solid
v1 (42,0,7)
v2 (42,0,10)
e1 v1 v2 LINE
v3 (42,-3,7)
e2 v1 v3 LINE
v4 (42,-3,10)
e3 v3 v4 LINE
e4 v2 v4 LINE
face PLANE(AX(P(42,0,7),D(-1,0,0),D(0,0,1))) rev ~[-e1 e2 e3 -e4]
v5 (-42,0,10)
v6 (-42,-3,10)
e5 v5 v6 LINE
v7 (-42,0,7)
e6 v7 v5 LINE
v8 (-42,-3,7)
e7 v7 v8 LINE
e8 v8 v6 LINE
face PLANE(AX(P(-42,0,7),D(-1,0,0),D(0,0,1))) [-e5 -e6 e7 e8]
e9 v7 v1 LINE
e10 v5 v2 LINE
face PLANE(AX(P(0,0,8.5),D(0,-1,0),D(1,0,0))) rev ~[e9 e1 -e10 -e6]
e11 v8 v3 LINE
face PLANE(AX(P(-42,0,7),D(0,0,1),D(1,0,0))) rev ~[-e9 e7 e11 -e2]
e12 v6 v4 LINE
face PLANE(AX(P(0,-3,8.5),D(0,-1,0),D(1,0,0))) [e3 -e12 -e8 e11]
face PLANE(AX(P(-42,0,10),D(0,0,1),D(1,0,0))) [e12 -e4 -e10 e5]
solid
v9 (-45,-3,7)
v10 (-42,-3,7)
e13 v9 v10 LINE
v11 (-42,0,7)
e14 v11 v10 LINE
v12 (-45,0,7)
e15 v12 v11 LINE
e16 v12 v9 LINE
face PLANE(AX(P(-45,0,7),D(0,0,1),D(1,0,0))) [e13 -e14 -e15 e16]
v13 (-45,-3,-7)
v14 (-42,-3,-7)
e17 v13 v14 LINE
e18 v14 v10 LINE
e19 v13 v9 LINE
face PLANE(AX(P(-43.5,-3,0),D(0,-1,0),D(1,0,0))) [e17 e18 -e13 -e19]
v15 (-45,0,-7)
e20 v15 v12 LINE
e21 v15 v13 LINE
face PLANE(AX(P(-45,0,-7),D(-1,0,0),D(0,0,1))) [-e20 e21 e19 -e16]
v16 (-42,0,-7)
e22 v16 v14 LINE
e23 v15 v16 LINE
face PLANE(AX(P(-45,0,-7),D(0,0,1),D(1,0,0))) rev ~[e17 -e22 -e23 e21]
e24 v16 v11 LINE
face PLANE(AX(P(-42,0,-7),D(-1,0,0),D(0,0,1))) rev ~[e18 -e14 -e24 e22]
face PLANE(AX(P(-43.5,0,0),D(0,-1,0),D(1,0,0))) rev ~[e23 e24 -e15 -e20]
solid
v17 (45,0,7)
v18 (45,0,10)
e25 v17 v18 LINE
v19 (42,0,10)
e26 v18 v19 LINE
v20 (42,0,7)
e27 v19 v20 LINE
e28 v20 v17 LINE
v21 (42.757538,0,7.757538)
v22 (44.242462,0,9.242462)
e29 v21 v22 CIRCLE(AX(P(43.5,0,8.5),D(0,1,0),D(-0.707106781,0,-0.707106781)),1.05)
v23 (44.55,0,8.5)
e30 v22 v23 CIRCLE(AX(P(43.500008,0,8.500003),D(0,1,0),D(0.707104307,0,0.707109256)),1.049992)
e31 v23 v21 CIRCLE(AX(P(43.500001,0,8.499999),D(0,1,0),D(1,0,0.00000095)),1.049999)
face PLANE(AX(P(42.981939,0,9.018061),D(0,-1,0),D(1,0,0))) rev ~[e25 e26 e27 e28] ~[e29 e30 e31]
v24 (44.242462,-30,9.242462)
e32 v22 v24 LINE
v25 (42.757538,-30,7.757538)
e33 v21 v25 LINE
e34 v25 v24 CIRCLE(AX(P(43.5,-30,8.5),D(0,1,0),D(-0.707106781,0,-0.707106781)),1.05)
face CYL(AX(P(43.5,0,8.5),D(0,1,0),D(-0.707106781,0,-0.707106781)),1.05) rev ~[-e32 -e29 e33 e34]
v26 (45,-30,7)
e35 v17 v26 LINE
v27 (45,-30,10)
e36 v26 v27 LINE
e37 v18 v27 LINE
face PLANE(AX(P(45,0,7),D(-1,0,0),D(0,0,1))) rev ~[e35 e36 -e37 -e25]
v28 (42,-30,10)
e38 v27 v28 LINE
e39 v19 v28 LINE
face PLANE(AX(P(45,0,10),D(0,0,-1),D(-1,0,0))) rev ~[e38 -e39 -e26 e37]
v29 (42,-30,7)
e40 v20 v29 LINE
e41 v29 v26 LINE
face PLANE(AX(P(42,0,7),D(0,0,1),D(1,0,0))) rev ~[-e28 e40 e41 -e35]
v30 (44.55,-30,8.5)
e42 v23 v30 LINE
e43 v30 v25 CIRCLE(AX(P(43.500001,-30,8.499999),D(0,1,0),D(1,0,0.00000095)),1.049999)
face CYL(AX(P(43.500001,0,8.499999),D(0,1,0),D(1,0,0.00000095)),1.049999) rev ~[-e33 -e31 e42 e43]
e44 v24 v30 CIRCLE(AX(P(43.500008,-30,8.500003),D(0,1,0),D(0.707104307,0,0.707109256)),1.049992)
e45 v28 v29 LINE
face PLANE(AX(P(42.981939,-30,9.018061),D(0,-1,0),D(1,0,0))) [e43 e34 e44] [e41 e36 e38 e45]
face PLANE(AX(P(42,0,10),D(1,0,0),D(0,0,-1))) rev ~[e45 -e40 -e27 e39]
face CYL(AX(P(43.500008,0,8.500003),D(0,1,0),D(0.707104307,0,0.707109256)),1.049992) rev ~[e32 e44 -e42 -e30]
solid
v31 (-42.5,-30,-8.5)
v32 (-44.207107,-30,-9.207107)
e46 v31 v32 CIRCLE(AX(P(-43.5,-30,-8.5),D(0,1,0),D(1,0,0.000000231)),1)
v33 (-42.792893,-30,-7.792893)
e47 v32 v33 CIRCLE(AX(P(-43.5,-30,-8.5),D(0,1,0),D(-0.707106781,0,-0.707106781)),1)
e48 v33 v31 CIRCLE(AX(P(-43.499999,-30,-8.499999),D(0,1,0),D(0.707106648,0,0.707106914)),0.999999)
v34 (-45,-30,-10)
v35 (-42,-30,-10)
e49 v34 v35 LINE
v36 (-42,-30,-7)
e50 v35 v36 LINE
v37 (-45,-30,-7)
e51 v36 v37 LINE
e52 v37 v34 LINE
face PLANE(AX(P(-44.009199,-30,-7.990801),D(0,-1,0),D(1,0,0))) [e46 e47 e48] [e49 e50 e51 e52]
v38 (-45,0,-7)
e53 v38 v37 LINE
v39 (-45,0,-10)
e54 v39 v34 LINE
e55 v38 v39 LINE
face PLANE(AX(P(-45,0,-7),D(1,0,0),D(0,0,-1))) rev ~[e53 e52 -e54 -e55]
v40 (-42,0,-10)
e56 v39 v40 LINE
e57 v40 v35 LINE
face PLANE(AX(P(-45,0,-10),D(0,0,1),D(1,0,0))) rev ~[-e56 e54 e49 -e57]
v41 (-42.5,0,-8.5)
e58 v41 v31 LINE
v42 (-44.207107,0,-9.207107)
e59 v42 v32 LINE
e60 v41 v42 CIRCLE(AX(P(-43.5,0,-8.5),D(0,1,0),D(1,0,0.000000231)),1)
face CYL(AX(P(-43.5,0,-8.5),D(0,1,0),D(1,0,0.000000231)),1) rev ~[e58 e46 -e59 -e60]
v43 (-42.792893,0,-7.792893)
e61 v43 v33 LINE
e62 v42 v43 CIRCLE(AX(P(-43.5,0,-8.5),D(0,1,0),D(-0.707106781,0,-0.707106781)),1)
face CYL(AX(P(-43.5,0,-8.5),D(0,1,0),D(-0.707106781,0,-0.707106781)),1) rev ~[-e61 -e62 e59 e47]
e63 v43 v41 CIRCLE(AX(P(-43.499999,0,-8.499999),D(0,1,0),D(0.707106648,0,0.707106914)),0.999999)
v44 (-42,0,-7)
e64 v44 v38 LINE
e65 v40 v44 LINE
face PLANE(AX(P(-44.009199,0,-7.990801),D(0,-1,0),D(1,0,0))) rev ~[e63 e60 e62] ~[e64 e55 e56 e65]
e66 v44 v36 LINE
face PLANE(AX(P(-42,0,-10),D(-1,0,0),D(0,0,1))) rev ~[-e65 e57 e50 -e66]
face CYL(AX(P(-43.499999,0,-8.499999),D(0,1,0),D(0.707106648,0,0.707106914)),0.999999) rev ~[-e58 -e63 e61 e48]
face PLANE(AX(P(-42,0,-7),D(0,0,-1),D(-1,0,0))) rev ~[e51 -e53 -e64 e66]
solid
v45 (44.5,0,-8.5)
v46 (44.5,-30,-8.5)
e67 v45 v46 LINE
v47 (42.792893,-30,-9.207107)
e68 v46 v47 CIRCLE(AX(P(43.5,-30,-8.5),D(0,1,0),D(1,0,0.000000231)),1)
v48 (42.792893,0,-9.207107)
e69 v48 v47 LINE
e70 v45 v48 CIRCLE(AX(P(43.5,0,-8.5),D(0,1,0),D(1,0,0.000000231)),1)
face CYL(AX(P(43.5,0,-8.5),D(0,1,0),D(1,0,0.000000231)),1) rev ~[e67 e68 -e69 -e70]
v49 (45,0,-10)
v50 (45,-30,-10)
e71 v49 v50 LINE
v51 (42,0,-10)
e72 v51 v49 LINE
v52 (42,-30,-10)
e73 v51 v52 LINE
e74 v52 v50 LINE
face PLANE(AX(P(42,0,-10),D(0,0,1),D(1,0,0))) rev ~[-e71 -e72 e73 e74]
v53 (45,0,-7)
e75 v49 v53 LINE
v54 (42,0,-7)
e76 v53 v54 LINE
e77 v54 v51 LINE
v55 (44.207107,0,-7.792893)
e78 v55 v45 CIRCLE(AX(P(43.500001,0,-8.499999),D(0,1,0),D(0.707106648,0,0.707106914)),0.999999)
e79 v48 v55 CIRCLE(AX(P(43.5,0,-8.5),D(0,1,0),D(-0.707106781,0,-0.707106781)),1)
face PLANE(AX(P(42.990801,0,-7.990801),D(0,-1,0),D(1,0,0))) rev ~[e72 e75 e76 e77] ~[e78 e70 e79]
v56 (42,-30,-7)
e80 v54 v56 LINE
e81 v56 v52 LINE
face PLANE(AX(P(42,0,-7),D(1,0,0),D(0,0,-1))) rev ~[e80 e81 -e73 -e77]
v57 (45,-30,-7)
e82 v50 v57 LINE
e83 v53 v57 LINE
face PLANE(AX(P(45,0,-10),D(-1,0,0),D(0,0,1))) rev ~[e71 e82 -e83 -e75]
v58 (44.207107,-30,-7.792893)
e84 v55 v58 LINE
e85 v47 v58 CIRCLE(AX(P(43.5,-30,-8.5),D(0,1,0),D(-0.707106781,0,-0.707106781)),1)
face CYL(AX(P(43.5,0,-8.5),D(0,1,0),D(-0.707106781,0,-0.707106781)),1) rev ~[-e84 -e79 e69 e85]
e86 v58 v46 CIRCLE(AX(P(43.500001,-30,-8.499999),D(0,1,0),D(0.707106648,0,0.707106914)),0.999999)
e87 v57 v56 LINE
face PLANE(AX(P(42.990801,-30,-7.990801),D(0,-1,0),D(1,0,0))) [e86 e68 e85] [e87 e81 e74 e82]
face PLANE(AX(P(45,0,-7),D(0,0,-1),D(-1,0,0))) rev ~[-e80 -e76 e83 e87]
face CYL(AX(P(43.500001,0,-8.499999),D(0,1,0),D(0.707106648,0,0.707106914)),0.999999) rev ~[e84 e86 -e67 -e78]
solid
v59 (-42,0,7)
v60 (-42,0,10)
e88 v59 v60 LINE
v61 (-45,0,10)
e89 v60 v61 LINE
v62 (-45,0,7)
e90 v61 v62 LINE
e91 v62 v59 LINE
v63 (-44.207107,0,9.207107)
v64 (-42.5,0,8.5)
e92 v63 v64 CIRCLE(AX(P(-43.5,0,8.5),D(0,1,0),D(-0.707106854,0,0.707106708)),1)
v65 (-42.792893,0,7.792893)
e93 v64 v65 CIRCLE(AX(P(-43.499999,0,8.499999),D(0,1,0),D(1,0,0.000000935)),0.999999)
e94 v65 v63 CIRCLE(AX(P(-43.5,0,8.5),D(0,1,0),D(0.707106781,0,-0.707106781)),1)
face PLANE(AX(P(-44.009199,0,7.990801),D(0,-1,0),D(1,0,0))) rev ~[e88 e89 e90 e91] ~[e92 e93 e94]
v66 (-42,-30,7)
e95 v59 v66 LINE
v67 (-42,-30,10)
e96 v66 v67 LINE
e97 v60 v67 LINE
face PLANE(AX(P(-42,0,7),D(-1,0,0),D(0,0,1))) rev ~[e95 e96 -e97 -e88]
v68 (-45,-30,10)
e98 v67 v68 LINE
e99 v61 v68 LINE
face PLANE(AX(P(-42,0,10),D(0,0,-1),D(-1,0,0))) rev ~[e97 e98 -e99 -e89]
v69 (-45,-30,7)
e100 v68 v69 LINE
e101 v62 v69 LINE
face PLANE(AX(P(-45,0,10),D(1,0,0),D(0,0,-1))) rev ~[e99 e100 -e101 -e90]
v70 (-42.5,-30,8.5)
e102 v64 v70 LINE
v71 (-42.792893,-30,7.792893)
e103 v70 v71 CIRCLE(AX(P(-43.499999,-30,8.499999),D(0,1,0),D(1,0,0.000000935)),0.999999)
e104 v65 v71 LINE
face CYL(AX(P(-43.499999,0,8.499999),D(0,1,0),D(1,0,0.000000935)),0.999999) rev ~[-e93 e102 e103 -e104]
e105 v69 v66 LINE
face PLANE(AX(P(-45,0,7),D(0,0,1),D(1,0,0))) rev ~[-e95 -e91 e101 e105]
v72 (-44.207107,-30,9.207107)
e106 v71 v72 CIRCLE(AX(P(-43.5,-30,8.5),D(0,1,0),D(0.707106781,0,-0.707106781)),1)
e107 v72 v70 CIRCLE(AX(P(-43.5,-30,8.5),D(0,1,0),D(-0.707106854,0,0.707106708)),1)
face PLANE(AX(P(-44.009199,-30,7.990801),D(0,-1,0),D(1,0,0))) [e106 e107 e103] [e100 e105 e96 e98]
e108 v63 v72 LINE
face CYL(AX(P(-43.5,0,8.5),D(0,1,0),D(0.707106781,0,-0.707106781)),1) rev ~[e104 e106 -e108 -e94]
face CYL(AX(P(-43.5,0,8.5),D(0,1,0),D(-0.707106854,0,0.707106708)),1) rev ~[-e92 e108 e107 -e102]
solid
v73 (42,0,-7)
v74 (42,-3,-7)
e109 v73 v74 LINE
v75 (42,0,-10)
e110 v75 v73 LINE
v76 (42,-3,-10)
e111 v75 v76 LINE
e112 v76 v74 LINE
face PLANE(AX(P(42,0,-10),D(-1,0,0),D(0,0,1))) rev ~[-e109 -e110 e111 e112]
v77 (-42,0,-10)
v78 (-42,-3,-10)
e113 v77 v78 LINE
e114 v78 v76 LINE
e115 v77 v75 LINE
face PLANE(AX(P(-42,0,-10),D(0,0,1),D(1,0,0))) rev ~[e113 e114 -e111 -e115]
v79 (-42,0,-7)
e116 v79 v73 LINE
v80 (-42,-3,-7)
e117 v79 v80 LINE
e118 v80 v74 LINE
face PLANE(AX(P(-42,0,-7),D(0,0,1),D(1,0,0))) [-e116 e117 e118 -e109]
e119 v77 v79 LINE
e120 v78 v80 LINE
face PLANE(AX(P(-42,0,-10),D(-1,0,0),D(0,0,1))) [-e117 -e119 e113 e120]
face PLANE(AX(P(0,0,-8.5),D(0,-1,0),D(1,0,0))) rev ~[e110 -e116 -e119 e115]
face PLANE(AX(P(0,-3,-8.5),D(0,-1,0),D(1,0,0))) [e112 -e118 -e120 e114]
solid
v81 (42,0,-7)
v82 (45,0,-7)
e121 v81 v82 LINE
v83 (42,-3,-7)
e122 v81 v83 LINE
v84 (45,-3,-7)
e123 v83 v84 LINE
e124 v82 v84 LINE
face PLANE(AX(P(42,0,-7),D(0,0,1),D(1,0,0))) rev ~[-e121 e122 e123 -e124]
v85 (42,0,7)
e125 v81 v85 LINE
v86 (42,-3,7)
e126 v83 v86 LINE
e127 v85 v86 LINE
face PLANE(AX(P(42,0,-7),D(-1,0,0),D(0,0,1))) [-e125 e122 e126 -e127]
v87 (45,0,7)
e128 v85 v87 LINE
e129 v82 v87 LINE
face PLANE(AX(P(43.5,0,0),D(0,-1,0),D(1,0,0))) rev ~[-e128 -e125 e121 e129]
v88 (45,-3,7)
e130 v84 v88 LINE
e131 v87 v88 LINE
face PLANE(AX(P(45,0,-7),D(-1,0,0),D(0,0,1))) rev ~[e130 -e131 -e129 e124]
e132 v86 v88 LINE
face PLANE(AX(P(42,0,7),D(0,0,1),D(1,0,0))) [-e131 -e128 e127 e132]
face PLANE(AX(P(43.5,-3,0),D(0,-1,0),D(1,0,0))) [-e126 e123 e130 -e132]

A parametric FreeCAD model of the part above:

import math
import FreeCAD as App
import Part
import Sketcher

V = App.Vector

doc = App.newDocument("Part")
body = doc.addObject("PartDesign::Body", "Body")
body.AllowCompound = True

# Sketch on XZ plane
sketch1 = body.newObject("Sketcher::SketchObject", "Sketch")
sketch1.AttachmentSupport = (doc.getObject("XZ_Plane"), [""])
sketch1.MapMode = "FlatFace"
sketch1.addGeometry(Part.LineSegment(V(-42, 10, 0), V(-42, 7, 0)), False)
sketch1.addGeometry(Part.LineSegment(V(-42, 7, 0), V(42, 7, 0)), False)
sketch1.addGeometry(Part.LineSegment(V(42, 7, 0), V(42, 10, 0)), False)
sketch1.addGeometry(Part.LineSegment(V(42, 10, 0), V(-42, 10, 0)), False)
sketch1.addGeometry(Part.LineSegment(V(-42, -7, 0), V(-42, -10, 0)), False)
sketch1.addGeometry(Part.LineSegment(V(-42, -10, 0), V(42, -10, 0)), False)
sketch1.addGeometry(Part.LineSegment(V(42, -10, 0), V(42, -7, 0)), False)
sketch1.addGeometry(Part.LineSegment(V(42, -7, 0), V(-42, -7, 0)), False)
sketch1.addGeometry(Part.LineSegment(V(-45, 7, 0), V(-45, -7, 0)), False)
sketch1.addGeometry(Part.LineSegment(V(-45, -7, 0), V(-42, -7, 0)), False)
sketch1.addGeometry(Part.LineSegment(V(-42, -7, 0), V(-42, 7, 0)), False)
sketch1.addGeometry(Part.LineSegment(V(-42, 7, 0), V(-45, 7, 0)), False)
sketch1.addGeometry(Part.LineSegment(V(42, 7, 0), V(42, -7, 0)), False)
sketch1.addGeometry(Part.LineSegment(V(42, -7, 0), V(45, -7, 0)), False)
sketch1.addGeometry(Part.LineSegment(V(45, -7, 0), V(45, 7, 0)), False)
sketch1.addGeometry(Part.LineSegment(V(45, 7, 0), V(42, 7, 0)), False)
sketch1.addConstraint(Sketcher.Constraint("Coincident", 0, 2, 1, 1))
sketch1.addConstraint(Sketcher.Constraint("Coincident", 1, 2, 2, 1))
sketch1.addConstraint(Sketcher.Constraint("Coincident", 2, 2, 3, 1))
sketch1.addConstraint(Sketcher.Constraint("Coincident", 3, 2, 0, 1))
sketch1.addConstraint(Sketcher.Constraint("Coincident", 4, 2, 5, 1))
sketch1.addConstraint(Sketcher.Constraint("Coincident", 5, 2, 6, 1))
sketch1.addConstraint(Sketcher.Constraint("Coincident", 6, 2, 7, 1))
sketch1.addConstraint(Sketcher.Constraint("Coincident", 7, 2, 4, 1))
sketch1.addConstraint(Sketcher.Constraint("Coincident", 8, 2, 9, 1))
sketch1.addConstraint(Sketcher.Constraint("Coincident", 9, 2, 10, 1))
sketch1.addConstraint(Sketcher.Constraint("Coincident", 10, 2, 11, 1))
sketch1.addConstraint(Sketcher.Constraint("Coincident", 11, 2, 8, 1))
sketch1.addConstraint(Sketcher.Constraint("Coincident", 12, 2, 13, 1))
sketch1.addConstraint(Sketcher.Constraint("Coincident", 13, 2, 14, 1))
sketch1.addConstraint(Sketcher.Constraint("Coincident", 14, 2, 15, 1))
sketch1.addConstraint(Sketcher.Constraint("Coincident", 15, 2, 12, 1))
sketch1.addConstraint(Sketcher.Constraint("Vertical", 0))
sketch1.addConstraint(Sketcher.Constraint("Horizontal", 1))
sketch1.addConstraint(Sketcher.Constraint("Vertical", 2))
sketch1.addConstraint(Sketcher.Constraint("Horizontal", 3))
sketch1.addConstraint(Sketcher.Constraint("Vertical", 4))
sketch1.addConstraint(Sketcher.Constraint("Horizontal", 5))
sketch1.addConstraint(Sketcher.Constraint("Vertical", 6))
sketch1.addConstraint(Sketcher.Constraint("Horizontal", 7))
sketch1.addConstraint(Sketcher.Constraint("Vertical", 8))
sketch1.addConstraint(Sketcher.Constraint("Horizontal", 9))
sketch1.addConstraint(Sketcher.Constraint("Vertical", 10))
sketch1.addConstraint(Sketcher.Constraint("Horizontal", 11))
sketch1.addConstraint(Sketcher.Constraint("Vertical", 12))
sketch1.addConstraint(Sketcher.Constraint("Horizontal", 13))
sketch1.addConstraint(Sketcher.Constraint("Vertical", 14))
sketch1.addConstraint(Sketcher.Constraint("Horizontal", 15))
sketch1.addConstraint(Sketcher.Constraint("Coincident", 9, 2, 7, 2))
sketch1.addConstraint(Sketcher.Constraint("Coincident", 10, 2, 0, 2))
sketch1.addConstraint(Sketcher.Constraint("Coincident", 12, 2, 6, 2))
sketch1.addConstraint(Sketcher.Constraint("Coincident", 15, 2, 1, 2))
sketch1.addConstraint(Sketcher.Constraint("Symmetric", 2, 2, 4, 2, -1, 1))
sketch1.addConstraint(Sketcher.Constraint("Symmetric", 11, 2, 13, 2, -1, 1))
sketch1.addConstraint(Sketcher.Constraint("Equal", 15, 0))
sketch1.addConstraint(Sketcher.Constraint("DistanceX", 1, 1, 1, 2, 84.0))
sketch1.addConstraint(Sketcher.Constraint("DistanceX", 9, 1, 9, 2, 3.0))
sketch1.addConstraint(Sketcher.Constraint("DistanceY", 8, 2, 8, 1, 14.0))
pad1 = body.newObject("PartDesign::Pad", "Pad")
pad1.Profile = sketch1
pad1.Length = 3
body2 = doc.addObject("PartDesign::Body", "Body001")
body2.AllowCompound = True

# Sketch on XZ plane
sketch2 = body2.newObject("Sketcher::SketchObject", "Sketch001")
sketch2.AttachmentSupport = (doc.getObject("XZ_Plane001"), [""])
sketch2.MapMode = "FlatFace"
sketch2.addGeometry(Part.LineSegment(V(45, -7, 0), V(42, -7, 0)), False)
sketch2.addGeometry(Part.LineSegment(V(42, -7, 0), V(42, -10, 0)), False)
sketch2.addGeometry(Part.LineSegment(V(42, -10, 0), V(45, -10, 0)), False)
sketch2.addGeometry(Part.LineSegment(V(45, -10, 0), V(45, -7, 0)), False)
sketch2.addGeometry(Part.ArcOfCircle(Part.Circle(V(43.5, -8.5, 0), V(0, 0, 1), 1), math.radians(45), math.radians(225)), False)
sketch2.addGeometry(Part.ArcOfCircle(Part.Circle(V(43.5, -8.5, 0), V(0, 0, 1), 1), math.radians(0), math.radians(45)), False)
sketch2.addGeometry(Part.ArcOfCircle(Part.Circle(V(43.5, -8.5, 0), V(0, 0, 1), 1), math.radians(-135), math.radians(0)), False)
sketch2.addGeometry(Part.LineSegment(V(-42, -7, 0), V(-45, -7, 0)), False)
sketch2.addGeometry(Part.LineSegment(V(-45, -7, 0), V(-45, -10, 0)), False)
sketch2.addGeometry(Part.LineSegment(V(-45, -10, 0), V(-42, -10, 0)), False)
sketch2.addGeometry(Part.LineSegment(V(-42, -10, 0), V(-42, -7, 0)), False)
sketch2.addGeometry(Part.ArcOfCircle(Part.Circle(V(-43.5, -8.5, 0), V(0, 0, 1), 1), math.radians(45), math.radians(225)), False)
sketch2.addGeometry(Part.ArcOfCircle(Part.Circle(V(-43.5, -8.5, 0), V(0, 0, 1), 1), math.radians(0), math.radians(45)), False)
sketch2.addGeometry(Part.ArcOfCircle(Part.Circle(V(-43.5, -8.5, 0), V(0, 0, 1), 1), math.radians(-135), math.radians(0)), False)
sketch2.addGeometry(Part.LineSegment(V(-45, 7, 0), V(-42, 7, 0)), False)
sketch2.addGeometry(Part.LineSegment(V(-42, 7, 0), V(-42, 10, 0)), False)
sketch2.addGeometry(Part.LineSegment(V(-42, 10, 0), V(-45, 10, 0)), False)
sketch2.addGeometry(Part.LineSegment(V(-45, 10, 0), V(-45, 7, 0)), False)
sketch2.addGeometry(Part.ArcOfCircle(Part.Circle(V(-43.5, 8.5, 0), V(0, 0, 1), 1), math.radians(135), math.radians(315)), False)
sketch2.addGeometry(Part.ArcOfCircle(Part.Circle(V(-43.5, 8.5, 0), V(0, 0, 1), 1), math.radians(0), math.radians(135)), False)
sketch2.addGeometry(Part.ArcOfCircle(Part.Circle(V(-43.5, 8.5, 0), V(0, 0, 1), 1), math.radians(-45), math.radians(0)), False)
sketch2.addGeometry(Part.LineSegment(V(42, 10, 0), V(42, 7, 0)), False)
sketch2.addGeometry(Part.LineSegment(V(42, 7, 0), V(45, 7, 0)), False)
sketch2.addGeometry(Part.LineSegment(V(45, 7, 0), V(45, 10, 0)), False)
sketch2.addGeometry(Part.LineSegment(V(45, 10, 0), V(42, 10, 0)), False)
sketch2.addGeometry(Part.ArcOfCircle(Part.Circle(V(43.5, 8.5, 0), V(0, 0, 1), 1), math.radians(45), math.radians(225)), False)
sketch2.addGeometry(Part.ArcOfCircle(Part.Circle(V(43.5, 8.5, 0), V(0, 0, 1), 1), math.radians(0), math.radians(45)), False)
sketch2.addGeometry(Part.ArcOfCircle(Part.Circle(V(43.5, 8.5, 0), V(0, 0, 1), 1), math.radians(-135), math.radians(0)), False)
sketch2.addConstraint(Sketcher.Constraint("Coincident", 0, 2, 1, 1))
sketch2.addConstraint(Sketcher.Constraint("Coincident", 1, 2, 2, 1))
sketch2.addConstraint(Sketcher.Constraint("Coincident", 2, 2, 3, 1))
sketch2.addConstraint(Sketcher.Constraint("Coincident", 3, 2, 0, 1))
sketch2.addConstraint(Sketcher.Constraint("Tangent", 4, 1, 5, 2))
sketch2.addConstraint(Sketcher.Constraint("Tangent", 5, 1, 6, 2))
sketch2.addConstraint(Sketcher.Constraint("Tangent", 6, 1, 4, 2))
sketch2.addConstraint(Sketcher.Constraint("Coincident", 7, 2, 8, 1))
sketch2.addConstraint(Sketcher.Constraint("Coincident", 8, 2, 9, 1))
sketch2.addConstraint(Sketcher.Constraint("Coincident", 9, 2, 10, 1))
sketch2.addConstraint(Sketcher.Constraint("Coincident", 10, 2, 7, 1))
sketch2.addConstraint(Sketcher.Constraint("Tangent", 11, 1, 12, 2))
sketch2.addConstraint(Sketcher.Constraint("Tangent", 12, 1, 13, 2))
sketch2.addConstraint(Sketcher.Constraint("Tangent", 13, 1, 11, 2))
sketch2.addConstraint(Sketcher.Constraint("Coincident", 14, 2, 15, 1))
sketch2.addConstraint(Sketcher.Constraint("Coincident", 15, 2, 16, 1))
sketch2.addConstraint(Sketcher.Constraint("Coincident", 16, 2, 17, 1))
sketch2.addConstraint(Sketcher.Constraint("Coincident", 17, 2, 14, 1))
sketch2.addConstraint(Sketcher.Constraint("Tangent", 18, 1, 19, 2))
sketch2.addConstraint(Sketcher.Constraint("Tangent", 19, 1, 20, 2))
sketch2.addConstraint(Sketcher.Constraint("Tangent", 20, 1, 18, 2))
sketch2.addConstraint(Sketcher.Constraint("Coincident", 21, 2, 22, 1))
sketch2.addConstraint(Sketcher.Constraint("Coincident", 22, 2, 23, 1))
sketch2.addConstraint(Sketcher.Constraint("Coincident", 23, 2, 24, 1))
sketch2.addConstraint(Sketcher.Constraint("Coincident", 24, 2, 21, 1))
sketch2.addConstraint(Sketcher.Constraint("Coincident", 25, 1, 26, 2))
sketch2.addConstraint(Sketcher.Constraint("Coincident", 26, 1, 27, 2))
sketch2.addConstraint(Sketcher.Constraint("Tangent", 27, 1, 25, 2))
sketch2.addConstraint(Sketcher.Constraint("Horizontal", 0))
sketch2.addConstraint(Sketcher.Constraint("Vertical", 1))
sketch2.addConstraint(Sketcher.Constraint("Horizontal", 2))
sketch2.addConstraint(Sketcher.Constraint("Vertical", 3))
sketch2.addConstraint(Sketcher.Constraint("Horizontal", 7))
sketch2.addConstraint(Sketcher.Constraint("Vertical", 8))
sketch2.addConstraint(Sketcher.Constraint("Horizontal", 9))
sketch2.addConstraint(Sketcher.Constraint("Vertical", 10))
sketch2.addConstraint(Sketcher.Constraint("Horizontal", 14))
sketch2.addConstraint(Sketcher.Constraint("Vertical", 15))
sketch2.addConstraint(Sketcher.Constraint("Horizontal", 16))
sketch2.addConstraint(Sketcher.Constraint("Vertical", 17))
sketch2.addConstraint(Sketcher.Constraint("Vertical", 21))
sketch2.addConstraint(Sketcher.Constraint("Horizontal", 22))
sketch2.addConstraint(Sketcher.Constraint("Vertical", 23))
sketch2.addConstraint(Sketcher.Constraint("Horizontal", 24))
sketch2.addConstraint(Sketcher.Constraint("Coincident", 26, 3, 25, 3))
sketch2.addConstraint(Sketcher.Constraint("Equal", 6, 11))
sketch2.addConstraint(Sketcher.Constraint("Equal", 13, 18))
sketch2.addConstraint(Sketcher.Constraint("Symmetric", 4, 3, 18, 3, -1, 1))
sketch2.addConstraint(Sketcher.Constraint("Symmetric", 11, 3, 25, 3, -1, 1))
sketch2.addConstraint(Sketcher.Constraint("Symmetric", 0, 2, 14, 2, -1, 1))
sketch2.addConstraint(Sketcher.Constraint("Symmetric", 2, 2, 16, 2, -1, 1))
sketch2.addConstraint(Sketcher.Constraint("Symmetric", 10, 2, 21, 2, -1, 1))
sketch2.addConstraint(Sketcher.Constraint("Symmetric", 8, 2, 23, 2, -1, 1))
sketch2.addConstraint(Sketcher.Constraint("Symmetric", 4, 3, 11, 3, -2))
sketch2.addConstraint(Sketcher.Constraint("Symmetric", 3, 2, 7, 2, -2))
sketch2.addConstraint(Sketcher.Constraint("Symmetric", 1, 2, 9, 2, -2))
sketch2.addConstraint(Sketcher.Constraint("Horizontal", 13, 3, 5, 1))
sketch2.addConstraint(Sketcher.Constraint("Horizontal", 4, 1, 11, 1))
sketch2.addConstraint(Sketcher.Constraint("Horizontal", 5, 1, 12, 1))
sketch2.addConstraint(Sketcher.Constraint("Horizontal", 6, 1, 13, 1))
sketch2.addConstraint(Sketcher.Constraint("Horizontal", 27, 3, 19, 1))
sketch2.addConstraint(Sketcher.Constraint("Horizontal", 19, 1, 26, 1))
sketch2.addConstraint(Sketcher.Constraint("Vertical", 13, 1, 18, 1))
sketch2.addConstraint(Sketcher.Constraint("Vertical", 11, 1, 20, 1))
sketch2.addConstraint(Sketcher.Constraint("Equal", 24, 1))
sketch2.addConstraint(Sketcher.Constraint("Radius", 4, 1.0))
sketch2.addConstraint(Sketcher.Constraint("DistanceX", 0, 2, 0, 1, 3.0))
sketch2.addConstraint(Sketcher.Constraint("Radius", 25, 1.05))
sketch2.addConstraint(Sketcher.Constraint("DistanceX", -1, 1, 0, 2, 42.0))
sketch2.addConstraint(Sketcher.Constraint("DistanceY", 0, 2, -1, 1, 7.0))
sketch2.addConstraint(Sketcher.Constraint("DistanceX", 11, 3, 6, 3, 87.0))
sketch2.addConstraint(Sketcher.Constraint("DistanceY", 12, 3, 18, 3, 16.999999))
sketch2.addConstraint(Sketcher.Constraint("DistanceX", -1, 1, 27, 1, 42.757538))
sketch2.addConstraint(Sketcher.Constraint("DistanceX", 6, 1, 5, 3, 0.707108))
sketch2.addConstraint(Sketcher.Constraint("DistanceY", 26, 3, 25, 1, 0.742459))
sketch2.addConstraint(Sketcher.Constraint("DistanceX", -1, 1, 4, 1, 44.207107))
pad2 = body2.newObject("PartDesign::Pad", "Pad001")
pad2.Profile = sketch2
pad2.Length = 30

doc.recompute()
